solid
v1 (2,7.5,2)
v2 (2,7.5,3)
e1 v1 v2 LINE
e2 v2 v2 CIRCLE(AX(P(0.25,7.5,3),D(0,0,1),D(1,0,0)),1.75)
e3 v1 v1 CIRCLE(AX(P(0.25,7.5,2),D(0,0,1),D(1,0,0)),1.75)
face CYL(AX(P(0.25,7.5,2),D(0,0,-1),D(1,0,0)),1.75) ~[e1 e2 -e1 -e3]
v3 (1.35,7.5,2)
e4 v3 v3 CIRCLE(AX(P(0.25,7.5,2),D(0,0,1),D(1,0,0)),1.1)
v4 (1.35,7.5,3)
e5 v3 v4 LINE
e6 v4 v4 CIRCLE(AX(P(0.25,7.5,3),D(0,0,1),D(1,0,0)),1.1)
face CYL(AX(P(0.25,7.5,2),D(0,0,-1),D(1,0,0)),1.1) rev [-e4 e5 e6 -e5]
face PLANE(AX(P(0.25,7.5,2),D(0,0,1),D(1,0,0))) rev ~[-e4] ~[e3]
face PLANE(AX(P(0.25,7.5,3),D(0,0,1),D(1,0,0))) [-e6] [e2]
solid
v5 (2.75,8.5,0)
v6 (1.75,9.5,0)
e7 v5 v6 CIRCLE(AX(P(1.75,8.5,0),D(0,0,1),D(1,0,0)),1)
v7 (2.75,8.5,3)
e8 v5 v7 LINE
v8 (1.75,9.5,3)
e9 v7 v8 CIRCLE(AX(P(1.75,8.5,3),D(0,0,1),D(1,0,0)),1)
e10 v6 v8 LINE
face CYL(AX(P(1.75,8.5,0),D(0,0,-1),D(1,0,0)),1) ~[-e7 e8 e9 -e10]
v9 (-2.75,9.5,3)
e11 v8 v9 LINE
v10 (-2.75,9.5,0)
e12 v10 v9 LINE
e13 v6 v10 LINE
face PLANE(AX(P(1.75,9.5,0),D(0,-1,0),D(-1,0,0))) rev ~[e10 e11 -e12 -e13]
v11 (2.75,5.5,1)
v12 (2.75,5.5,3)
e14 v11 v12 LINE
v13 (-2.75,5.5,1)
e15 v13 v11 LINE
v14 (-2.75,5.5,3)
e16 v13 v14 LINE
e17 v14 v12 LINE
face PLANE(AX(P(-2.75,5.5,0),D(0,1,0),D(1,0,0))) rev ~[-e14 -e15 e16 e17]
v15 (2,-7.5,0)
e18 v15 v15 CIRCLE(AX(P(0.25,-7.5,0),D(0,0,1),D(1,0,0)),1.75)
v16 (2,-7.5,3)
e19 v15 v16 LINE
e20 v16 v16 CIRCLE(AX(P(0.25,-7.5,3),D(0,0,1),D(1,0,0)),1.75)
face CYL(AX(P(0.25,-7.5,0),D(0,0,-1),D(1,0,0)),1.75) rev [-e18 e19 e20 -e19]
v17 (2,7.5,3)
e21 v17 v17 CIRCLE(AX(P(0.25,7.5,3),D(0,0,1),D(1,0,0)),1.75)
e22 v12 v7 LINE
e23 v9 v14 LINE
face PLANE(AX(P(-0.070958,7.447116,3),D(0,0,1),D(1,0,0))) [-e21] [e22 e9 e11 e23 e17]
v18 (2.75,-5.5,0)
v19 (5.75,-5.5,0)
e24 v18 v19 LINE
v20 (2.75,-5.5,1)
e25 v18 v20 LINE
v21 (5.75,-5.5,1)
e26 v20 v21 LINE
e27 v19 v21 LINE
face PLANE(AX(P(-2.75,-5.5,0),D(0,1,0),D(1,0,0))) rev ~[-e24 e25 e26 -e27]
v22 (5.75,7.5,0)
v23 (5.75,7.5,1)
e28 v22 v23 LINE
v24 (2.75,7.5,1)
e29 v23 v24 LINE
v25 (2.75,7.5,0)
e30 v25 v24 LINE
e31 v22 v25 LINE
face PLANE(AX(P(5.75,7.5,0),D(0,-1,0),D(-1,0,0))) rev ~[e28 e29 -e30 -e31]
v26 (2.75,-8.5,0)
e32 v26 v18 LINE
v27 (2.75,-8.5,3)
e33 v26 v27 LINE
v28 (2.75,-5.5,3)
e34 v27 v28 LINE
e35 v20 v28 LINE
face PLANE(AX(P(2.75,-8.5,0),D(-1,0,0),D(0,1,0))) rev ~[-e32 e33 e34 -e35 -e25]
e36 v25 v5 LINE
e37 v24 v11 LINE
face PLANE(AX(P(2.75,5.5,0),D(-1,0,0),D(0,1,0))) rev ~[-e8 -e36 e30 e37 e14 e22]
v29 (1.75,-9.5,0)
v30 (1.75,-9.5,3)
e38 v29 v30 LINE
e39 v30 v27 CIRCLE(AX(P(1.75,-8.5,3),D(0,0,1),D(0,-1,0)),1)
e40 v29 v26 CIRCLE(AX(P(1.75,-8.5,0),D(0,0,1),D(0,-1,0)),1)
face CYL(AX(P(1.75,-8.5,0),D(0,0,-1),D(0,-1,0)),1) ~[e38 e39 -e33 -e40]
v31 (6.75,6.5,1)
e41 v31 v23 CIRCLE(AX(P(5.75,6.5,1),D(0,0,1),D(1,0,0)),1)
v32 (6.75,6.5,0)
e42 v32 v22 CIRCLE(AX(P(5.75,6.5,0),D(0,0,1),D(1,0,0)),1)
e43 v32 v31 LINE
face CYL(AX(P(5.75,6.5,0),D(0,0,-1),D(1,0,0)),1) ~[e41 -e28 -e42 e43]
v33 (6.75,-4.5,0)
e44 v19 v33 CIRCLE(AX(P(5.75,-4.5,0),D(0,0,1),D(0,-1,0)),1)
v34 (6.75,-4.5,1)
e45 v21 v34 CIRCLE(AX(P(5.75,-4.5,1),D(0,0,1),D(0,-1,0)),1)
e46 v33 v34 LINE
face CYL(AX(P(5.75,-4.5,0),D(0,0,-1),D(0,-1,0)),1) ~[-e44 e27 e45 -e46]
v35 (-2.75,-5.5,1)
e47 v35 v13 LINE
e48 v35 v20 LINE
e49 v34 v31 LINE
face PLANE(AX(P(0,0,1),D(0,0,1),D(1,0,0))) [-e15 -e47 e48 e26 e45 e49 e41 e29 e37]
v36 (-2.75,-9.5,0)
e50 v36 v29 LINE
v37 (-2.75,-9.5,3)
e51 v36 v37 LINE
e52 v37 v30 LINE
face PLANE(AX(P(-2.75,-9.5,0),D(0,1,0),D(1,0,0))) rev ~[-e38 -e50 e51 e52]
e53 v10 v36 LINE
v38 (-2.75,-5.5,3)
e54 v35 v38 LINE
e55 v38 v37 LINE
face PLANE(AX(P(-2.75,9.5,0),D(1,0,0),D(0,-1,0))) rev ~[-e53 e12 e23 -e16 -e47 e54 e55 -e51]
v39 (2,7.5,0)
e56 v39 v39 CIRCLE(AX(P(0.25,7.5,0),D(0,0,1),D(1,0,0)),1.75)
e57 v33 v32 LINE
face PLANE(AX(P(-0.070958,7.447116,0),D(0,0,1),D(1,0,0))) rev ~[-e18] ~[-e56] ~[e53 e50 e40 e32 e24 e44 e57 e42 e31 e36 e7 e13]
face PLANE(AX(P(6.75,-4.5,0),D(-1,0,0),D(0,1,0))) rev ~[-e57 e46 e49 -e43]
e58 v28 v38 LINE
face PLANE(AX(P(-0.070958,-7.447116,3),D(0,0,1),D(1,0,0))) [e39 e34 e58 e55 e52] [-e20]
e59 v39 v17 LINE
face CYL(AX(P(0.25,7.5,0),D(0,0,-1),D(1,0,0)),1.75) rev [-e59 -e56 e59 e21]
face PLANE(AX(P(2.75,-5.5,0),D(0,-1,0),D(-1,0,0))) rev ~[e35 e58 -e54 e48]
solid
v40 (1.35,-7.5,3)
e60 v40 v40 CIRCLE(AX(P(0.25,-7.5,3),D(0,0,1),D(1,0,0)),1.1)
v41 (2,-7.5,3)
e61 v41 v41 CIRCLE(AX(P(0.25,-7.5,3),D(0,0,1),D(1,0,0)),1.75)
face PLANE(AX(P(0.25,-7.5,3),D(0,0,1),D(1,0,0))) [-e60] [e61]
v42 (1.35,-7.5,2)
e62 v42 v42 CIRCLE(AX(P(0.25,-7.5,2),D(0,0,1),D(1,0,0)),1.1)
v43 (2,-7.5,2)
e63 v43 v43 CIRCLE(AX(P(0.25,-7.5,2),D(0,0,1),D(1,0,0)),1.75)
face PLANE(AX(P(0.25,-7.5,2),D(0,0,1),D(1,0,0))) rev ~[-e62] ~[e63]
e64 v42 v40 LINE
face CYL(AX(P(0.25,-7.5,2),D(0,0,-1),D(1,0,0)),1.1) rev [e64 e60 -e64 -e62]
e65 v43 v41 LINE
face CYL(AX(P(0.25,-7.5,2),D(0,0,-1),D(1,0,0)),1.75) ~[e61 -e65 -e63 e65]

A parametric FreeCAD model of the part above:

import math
import FreeCAD as App
import Part
import Sketcher
from FreeCAD import Vector

doc = App.newDocument("Part")
body = doc.addObject("PartDesign::Body", "Body")

sketch1 = doc.addObject("Sketcher::SketchObject", "Sketch")
body.addObject(sketch1)
sketch1.AttachmentSupport = (doc.XY_Plane, [""])
sketch1.MapMode = "FlatFace"
sketch1.addGeometry([
    Part.LineSegment(Vector(-2.8, 5.5, 0), Vector(-2.8, -5.5, 0)),
    Part.LineSegment(Vector(-2.8, -5.5, 0), Vector(5.8, -5.5, 0)),
    Part.ArcOfCircle(Part.Circle(Vector(5.8, -4.5, 0), Vector(0, 0, 1), 1), math.radians(-90), math.radians(0)),
    Part.LineSegment(Vector(6.8, -4.5, 0), Vector(6.8, 6.5, 0)),
    Part.ArcOfCircle(Part.Circle(Vector(5.8, 6.5, 0), Vector(0, 0, 1), 1), math.radians(0), math.radians(90)),
    Part.LineSegment(Vector(5.8, 7.5, 0), Vector(2.8, 7.5, 0)),
    Part.LineSegment(Vector(2.8, 7.5, 0), Vector(2.8, 5.5, 0)),
    Part.LineSegment(Vector(2.8, 5.5, 0), Vector(-2.8, 5.5, 0)),
], False)
sketch1.addConstraint([
    Sketcher.Constraint("Coincident", 0, 2, 1, 1),
    Sketcher.Constraint("Tangent", 1, 2, 2, 1),
    Sketcher.Constraint("Tangent", 2, 2, 3, 1),
    Sketcher.Constraint("Tangent", 3, 2, 4, 1),
    Sketcher.Constraint("Tangent", 4, 2, 5, 1),
    Sketcher.Constraint("Coincident", 5, 2, 6, 1),
    Sketcher.Constraint("Coincident", 6, 2, 7, 1),
    Sketcher.Constraint("Coincident", 7, 2, 0, 1),
    Sketcher.Constraint("Vertical", 0),
    Sketcher.Constraint("Horizontal", 1),
    Sketcher.Constraint("Vertical", 3),
    Sketcher.Constraint("Horizontal", 5),
    Sketcher.Constraint("Vertical", 6),
    Sketcher.Constraint("Horizontal", 7),
    Sketcher.Constraint("Equal", 2, 4),
    Sketcher.Constraint("Symmetric", 0, 2, 6, 2, -1, 1),
    Sketcher.Constraint("Equal", 0, 3),
    Sketcher.Constraint("Radius", 2, 1.0),
    Sketcher.Constraint("DistanceX", 5, 2, 5, 1, 3.0),
    Sketcher.Constraint("DistanceY", 0, 2, 0, 1, 11.0),
    Sketcher.Constraint("DistanceX", 1, 1, 1, 2, 8.5),
])
pad1 = doc.addObject("PartDesign::Pad", "Pad")
body.addObject(pad1)
pad1.Profile = sketch1
pad1.Length = 1

sketch2 = doc.addObject("Sketcher::SketchObject", "Sketch001")
body.addObject(sketch2)
sketch2.AttachmentSupport = (doc.XY_Plane, [""])
sketch2.MapMode = "FlatFace"
sketch2.addGeometry([
    Part.LineSegment(Vector(1.8, 9.5, 0), Vector(-2.8, 9.5, 0)),
    Part.LineSegment(Vector(-2.8, 9.5, 0), Vector(-2.8, 5.5, 0)),
    Part.LineSegment(Vector(-2.8, 5.5, 0), Vector(2.8, 5.5, 0)),
    Part.LineSegment(Vector(2.8, 5.5, 0), Vector(2.8, 8.5, 0)),
    Part.ArcOfCircle(Part.Circle(Vector(1.8, 8.5, 0), Vector(0, 0, 1), 1), math.radians(0), math.radians(90)),
    Part.Circle(Vector(0.2, 7.5, 0), Vector(0, 0, 1), 1.8),
    Part.LineSegment(Vector(2.8, -5.5, 0), Vector(-2.8, -5.5, 0)),
    Part.LineSegment(Vector(-2.8, -5.5, 0), Vector(-2.8, -9.5, 0)),
    Part.LineSegment(Vector(-2.8, -9.5, 0), Vector(1.8, -9.5, 0)),
    Part.ArcOfCircle(Part.Circle(Vector(1.8, -8.5, 0), Vector(0, 0, 1), 1), math.radians(-90), math.radians(0)),
    Part.LineSegment(Vector(2.8, -8.5, 0), Vector(2.8, -5.5, 0)),
    Part.Circle(Vector(0.2, -7.5, 0), Vector(0, 0, 1), 1.8),
], False)
sketch2.addConstraint([
    Sketcher.Constraint("Coincident", 0, 2, 1, 1),
    Sketcher.Constraint("Coincident", 1, 2, 2, 1),
    Sketcher.Constraint("Coincident", 2, 2, 3, 1),
    Sketcher.Constraint("Tangent", 3, 2, 4, 1),
    Sketcher.Constraint("Tangent", 4, 2, 0, 1),
    Sketcher.Constraint("Coincident", 6, 2, 7, 1),
    Sketcher.Constraint("Coincident", 7, 2, 8, 1),
    Sketcher.Constraint("Tangent", 8, 2, 9, 1),
    Sketcher.Constraint("Tangent", 9, 2, 10, 1),
    Sketcher.Constraint("Coincident", 10, 2, 6, 1),
    Sketcher.Constraint("Horizontal", 0),
    Sketcher.Constraint("Vertical", 1),
    Sketcher.Constraint("Horizontal", 2),
    Sketcher.Constraint("Vertical", 3),
    Sketcher.Constraint("Horizontal", 6),
    Sketcher.Constraint("Vertical", 7),
    Sketcher.Constraint("Horizontal", 8),
    Sketcher.Constraint("Vertical", 10),
    Sketcher.Constraint("Equal", 4, 9),
    Sketcher.Constraint("Equal", 5, 11),
    Sketcher.Constraint("Symmetric", 2, 2, 6, 2, -1, 1),
    Sketcher.Constraint("Symmetric", 4, 3, 9, 3, -1),
    Sketcher.Constraint("Symmetric", 5, 3, 11, 3, -1),
    Sketcher.Constraint("Vertical", 1, 2, 6, 2),
    Sketcher.Constraint("Radius", 4, 1.0),
    Sketcher.Constraint("Diameter", 5, 3.5),
    Sketcher.Constraint("DistanceY", 1, 2, 1, 1, 4.0),
    Sketcher.Constraint("DistanceX", 0, 2, 0, 1, 4.5),
    Sketcher.Constraint("DistanceY", 5, 3, 4, 3, 1.0),
    Sketcher.Constraint("DistanceY", 9, 3, 5, 3, 16.0),
    Sketcher.Constraint("DistanceX", 0, 2, 5, 3, 3.0),
])
pad2 = doc.addObject("PartDesign::Pad", "Pad001")
body.addObject(pad2)
pad2.Profile = sketch2
pad2.Length = 3
body2 = doc.addObject("PartDesign::Body", "Body001")

sketch3 = doc.addObject("Sketcher::SketchObject", "Sketch002")
body2.addObject(sketch3)
sketch3.AttachmentSupport = (doc.getObject("XY_Plane001"), [""])
sketch3.MapMode = "FlatFace"
sketch3.AttachmentOffset = App.Placement(Vector(0, 0, 2), App.Rotation())
sketch3.addGeometry([
    Part.Circle(Vector(0.2, 7.5, 0), Vector(0, 0, 1), 1.8),
    Part.Circle(Vector(0.2, 7.5, 0), Vector(0, 0, 1), 1.1),
], False)
sketch3.addConstraint([
    Sketcher.Constraint("Coincident", 1, 3, 0, 3),
    Sketcher.Constraint("Diameter", 0, 3.5),
    Sketcher.Constraint("Diameter", 1, 2.2),
    Sketcher.Constraint("DistanceY", -1, 1, 0, 3, 7.5),
    Sketcher.Constraint("DistanceX", -1, 1, 0, 3, 0.25),
])
pad3 = doc.addObject("PartDesign::Pad", "Pad002")
body2.addObject(pad3)
pad3.Profile = sketch3
pad3.Length = 1
body3 = doc.addObject("PartDesign::Body", "Body002")

sketch4 = doc.addObject("Sketcher::SketchObject", "Sketch003")
body3.addObject(sketch4)
sketch4.AttachmentSupport = (doc.getObject("XY_Plane002"), [""])
sketch4.MapMode = "FlatFace"
sketch4.AttachmentOffset = App.Placement(Vector(0, 0, 2), App.Rotation())
sketch4.addGeometry([
    Part.Circle(Vector(0.2, -7.5, 0), Vector(0, 0, 1), 1.8),
    Part.Circle(Vector(0.2, -7.5, 0), Vector(0, 0, 1), 1.1),
], False)
sketch4.addConstraint([
    Sketcher.Constraint("Coincident", 1, 3, 0, 3),
    Sketcher.Constraint("Diameter", 0, 3.5),
    Sketcher.Constraint("Diameter", 1, 2.2),
    Sketcher.Constraint("DistanceY", 0, 3, -1, 1, 7.5),
    Sketcher.Constraint("DistanceX", -1, 1, 0, 3, 0.25),
])
pad4 = doc.addObject("PartDesign::Pad", "Pad003")
body3.addObject(pad4)
pad4.Profile = sketch4
pad4.Length = 1

doc.recompute()
